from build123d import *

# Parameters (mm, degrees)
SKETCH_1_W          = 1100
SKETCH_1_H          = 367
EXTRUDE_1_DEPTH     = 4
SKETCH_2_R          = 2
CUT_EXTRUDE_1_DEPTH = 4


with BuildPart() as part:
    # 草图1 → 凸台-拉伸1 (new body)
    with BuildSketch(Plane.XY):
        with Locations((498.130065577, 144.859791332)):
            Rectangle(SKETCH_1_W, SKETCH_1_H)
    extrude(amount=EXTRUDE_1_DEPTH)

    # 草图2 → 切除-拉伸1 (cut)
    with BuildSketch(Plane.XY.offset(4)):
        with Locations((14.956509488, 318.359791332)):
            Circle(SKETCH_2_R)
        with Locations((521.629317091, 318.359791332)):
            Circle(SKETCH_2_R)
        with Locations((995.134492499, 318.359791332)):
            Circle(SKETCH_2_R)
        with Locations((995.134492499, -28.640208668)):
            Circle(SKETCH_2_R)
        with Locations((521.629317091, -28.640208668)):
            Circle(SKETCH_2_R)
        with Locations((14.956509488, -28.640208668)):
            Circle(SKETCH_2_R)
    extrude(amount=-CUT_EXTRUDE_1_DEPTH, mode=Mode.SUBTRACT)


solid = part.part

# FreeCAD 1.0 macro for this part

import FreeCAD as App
import Part
import Sketcher


def add_polygon(sketch, points):
    """Adds a closed chain of lines whose ends are joined by coincident constraints."""
    first, n = sketch.GeometryCount, len(points)
    for a, b in zip(points, points[1:] + points[:1]):
        sketch.addGeometry(Part.LineSegment(App.Vector(*a, 0), App.Vector(*b, 0)), False)
    for i in range(n):
        sketch.addConstraint(Sketcher.Constraint("Coincident", first + i, 2, first + (i + 1) % n, 1))

doc = App.newDocument("Part")
body = doc.addObject("PartDesign::Body", "Body")

sketch1 = body.newObject("Sketcher::SketchObject", "Sketch")
sketch1.AttachmentSupport = (doc.getObject("XY_Plane"), [""])
sketch1.MapMode = "FlatFace"
add_polygon(sketch1, [(-52, 328), (-52, -39), (1048, -39), (1048, 328)])
sketch1.addConstraint([
    Sketcher.Constraint("Vertical", 0),
    Sketcher.Constraint("Horizontal", 1),
    Sketcher.Constraint("Vertical", 2),
    Sketcher.Constraint("Horizontal", 3),
    Sketcher.Constraint("DistanceX", 1, 1, 1, 2, 1100.0),
    Sketcher.Constraint("DistanceY", 0, 2, 0, 1, 367.0),
    Sketcher.Constraint("DistanceY", 0, 2, -1, 1, 38.640209),
    Sketcher.Constraint("DistanceX", 0, 2, -1, 1, 51.869934),
])
pad1 = body.newObject("PartDesign::Pad", "Pad")
pad1.Profile = sketch1
pad1.Length = 4

sketch2 = body.newObject("Sketcher::SketchObject", "Sketch001")
sketch2.AttachmentSupport = (doc.getObject("XY_Plane"), [""])
sketch2.MapMode = "FlatFace"
sketch2.AttachmentOffset = App.Placement(App.Vector(0, 0, 4), App.Rotation())
sketch2.addGeometry([
    Part.Circle(App.Vector(15, 318.4, 0), App.Vector(0, 0, 1), 2),
    Part.Circle(App.Vector(521.6, 318.4, 0), App.Vector(0, 0, 1), 2),
    Part.Circle(App.Vector(995.1, 318.4, 0), App.Vector(0, 0, 1), 2),
    Part.Circle(App.Vector(995.1, -28.6, 0), App.Vector(0, 0, 1), 2),
    Part.Circle(App.Vector(521.6, -28.6, 0), App.Vector(0, 0, 1), 2),
    Part.Circle(App.Vector(15, -28.6, 0), App.Vector(0, 0, 1), 2),
], False)
sketch2.addConstraint([
    Sketcher.Constraint("Equal", 0, 1),
    Sketcher.Constraint("Equal", 1, 2),
    Sketcher.Constraint("Equal", 2, 3),
    Sketcher.Constraint("Equal", 3, 4),
    Sketcher.Constraint("Equal", 4, 5),
    Sketcher.Constraint("Horizontal", 0, 3, 1, 3),
    Sketcher.Constraint("Horizontal", 1, 3, 2, 3),
    Sketcher.Constraint("Horizontal", 3, 3, 4, 3),
    Sketcher.Constraint("Horizontal", 4, 3, 5, 3),
    Sketcher.Constraint("Vertical", 2, 3, 3, 3),
    Sketcher.Constraint("Vertical", 1, 3, 4, 3),
    Sketcher.Constraint("Vertical", 0, 3, 5, 3),
    Sketcher.Constraint("Diameter", 0, 4.0),
    Sketcher.Constraint("DistanceY", 3, 3, 2, 3, 347.0),
    Sketcher.Constraint("DistanceX", -1, 1, 0, 3, 14.956509),
    Sketcher.Constraint("DistanceY", -1, 1, 0, 3, 318.359791),
    Sketcher.Constraint("DistanceX", -1, 1, 1, 3, 521.629317),
    Sketcher.Constraint("DistanceX", -1, 1, 2, 3, 995.134492),
])
pocket1 = body.newObject("PartDesign::Pocket", "Pocket")
pocket1.Profile = sketch2
pocket1.Length = 4

doc.recompute()
